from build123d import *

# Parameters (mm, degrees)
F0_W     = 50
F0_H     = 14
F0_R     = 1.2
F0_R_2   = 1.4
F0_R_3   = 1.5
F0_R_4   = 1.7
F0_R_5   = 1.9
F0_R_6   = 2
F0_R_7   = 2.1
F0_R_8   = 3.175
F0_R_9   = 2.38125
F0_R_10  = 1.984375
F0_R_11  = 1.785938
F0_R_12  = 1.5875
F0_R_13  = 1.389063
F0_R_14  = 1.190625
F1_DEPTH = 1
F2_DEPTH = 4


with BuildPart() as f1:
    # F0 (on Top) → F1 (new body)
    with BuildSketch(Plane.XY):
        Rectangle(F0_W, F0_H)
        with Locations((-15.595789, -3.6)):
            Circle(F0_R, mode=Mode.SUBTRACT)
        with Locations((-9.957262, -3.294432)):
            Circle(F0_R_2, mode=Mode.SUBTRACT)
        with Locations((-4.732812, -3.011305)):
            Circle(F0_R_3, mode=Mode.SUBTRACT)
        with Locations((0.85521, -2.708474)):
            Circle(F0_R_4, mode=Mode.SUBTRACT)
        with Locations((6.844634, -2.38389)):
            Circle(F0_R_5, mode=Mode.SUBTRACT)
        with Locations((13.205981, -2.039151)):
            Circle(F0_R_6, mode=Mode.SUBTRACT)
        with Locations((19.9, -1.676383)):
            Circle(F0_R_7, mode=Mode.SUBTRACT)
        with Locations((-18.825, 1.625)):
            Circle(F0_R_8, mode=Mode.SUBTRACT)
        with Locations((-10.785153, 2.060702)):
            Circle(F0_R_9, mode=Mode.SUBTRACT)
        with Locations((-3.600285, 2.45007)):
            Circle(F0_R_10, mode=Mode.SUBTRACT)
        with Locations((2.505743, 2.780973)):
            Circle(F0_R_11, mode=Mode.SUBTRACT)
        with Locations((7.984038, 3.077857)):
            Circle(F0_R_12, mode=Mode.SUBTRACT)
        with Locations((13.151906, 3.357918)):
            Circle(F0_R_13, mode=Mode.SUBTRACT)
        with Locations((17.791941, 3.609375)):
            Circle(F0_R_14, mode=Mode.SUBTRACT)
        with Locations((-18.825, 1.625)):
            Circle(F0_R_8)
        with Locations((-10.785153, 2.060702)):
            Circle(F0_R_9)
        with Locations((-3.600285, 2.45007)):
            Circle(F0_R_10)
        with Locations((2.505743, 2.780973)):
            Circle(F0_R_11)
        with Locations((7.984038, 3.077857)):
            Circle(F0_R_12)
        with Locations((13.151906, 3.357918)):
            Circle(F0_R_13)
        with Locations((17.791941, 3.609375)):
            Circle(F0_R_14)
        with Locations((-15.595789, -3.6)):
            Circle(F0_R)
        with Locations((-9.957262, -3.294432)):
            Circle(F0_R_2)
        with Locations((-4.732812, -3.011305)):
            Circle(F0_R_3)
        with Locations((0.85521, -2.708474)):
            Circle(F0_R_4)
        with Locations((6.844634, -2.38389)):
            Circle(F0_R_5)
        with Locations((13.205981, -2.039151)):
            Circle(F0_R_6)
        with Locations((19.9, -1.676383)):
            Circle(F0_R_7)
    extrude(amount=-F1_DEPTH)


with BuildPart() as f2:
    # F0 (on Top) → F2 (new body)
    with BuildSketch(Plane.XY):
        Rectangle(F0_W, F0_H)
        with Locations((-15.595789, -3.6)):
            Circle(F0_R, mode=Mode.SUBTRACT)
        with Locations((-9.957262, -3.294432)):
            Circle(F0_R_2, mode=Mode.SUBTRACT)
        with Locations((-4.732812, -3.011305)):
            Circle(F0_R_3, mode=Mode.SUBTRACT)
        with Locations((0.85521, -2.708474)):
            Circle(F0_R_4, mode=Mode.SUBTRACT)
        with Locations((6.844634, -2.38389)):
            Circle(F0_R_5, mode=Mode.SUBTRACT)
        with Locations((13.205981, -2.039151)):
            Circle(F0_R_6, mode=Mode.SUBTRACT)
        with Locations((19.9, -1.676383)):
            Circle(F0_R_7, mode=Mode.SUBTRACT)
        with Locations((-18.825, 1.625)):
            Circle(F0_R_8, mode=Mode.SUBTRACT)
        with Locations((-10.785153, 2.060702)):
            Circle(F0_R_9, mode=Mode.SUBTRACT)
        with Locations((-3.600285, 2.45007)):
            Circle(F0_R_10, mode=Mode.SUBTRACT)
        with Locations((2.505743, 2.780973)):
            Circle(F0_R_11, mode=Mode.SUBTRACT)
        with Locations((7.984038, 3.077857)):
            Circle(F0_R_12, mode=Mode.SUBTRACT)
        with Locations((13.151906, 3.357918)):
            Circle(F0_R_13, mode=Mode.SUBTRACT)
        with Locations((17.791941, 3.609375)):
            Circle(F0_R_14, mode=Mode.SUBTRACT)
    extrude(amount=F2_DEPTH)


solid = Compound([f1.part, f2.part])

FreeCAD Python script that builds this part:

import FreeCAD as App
import Part
import Sketcher
from FreeCAD import Vector

doc = App.newDocument("Part")
body = doc.addObject("PartDesign::Body", "Body")

sketch1 = body.newObject("Sketcher::SketchObject", "Sketch")
sketch1.AttachmentSupport = (doc.getObject("XY_Plane"), [""])
sketch1.MapMode = "FlatFace"
sketch1.addGeometry([
    Part.LineSegment(Vector(-25, 7, 0), Vector(-25, -7, 0)),
    Part.LineSegment(Vector(-25, -7, 0), Vector(25, -7, 0)),
    Part.LineSegment(Vector(25, -7, 0), Vector(25, 7, 0)),
    Part.LineSegment(Vector(25, 7, 0), Vector(-25, 7, 0)),
], False)
sketch1.addConstraint([
    Sketcher.Constraint("Coincident", 0, 2, 1, 1),
    Sketcher.Constraint("Coincident", 1, 2, 2, 1),
    Sketcher.Constraint("Coincident", 2, 2, 3, 1),
    Sketcher.Constraint("Coincident", 3, 2, 0, 1),
    Sketcher.Constraint("Vertical", 0),
    Sketcher.Constraint("Horizontal", 1),
    Sketcher.Constraint("Vertical", 2),
    Sketcher.Constraint("Horizontal", 3),
    Sketcher.Constraint("Symmetric", 0, 2, 2, 2, -1, 1),
    Sketcher.Constraint("DistanceX", 1, 1, 1, 2, 50.0),
    Sketcher.Constraint("DistanceY", 0, 2, 0, 1, 14.0),
])
pad1 = body.newObject("PartDesign::Pad", "Pad")
pad1.Profile = sketch1
pad1.Length = 1
pad1.Reversed = True
body2 = doc.addObject("PartDesign::Body", "Body001")

sketch2 = body2.newObject("Sketcher::SketchObject", "Sketch001")
sketch2.AttachmentSupport = (doc.getObject("XY_Plane001"), [""])
sketch2.MapMode = "FlatFace"
sketch2.addGeometry([
    Part.LineSegment(Vector(-25, 7, 0), Vector(-25, -7, 0)),
    Part.LineSegment(Vector(-25, -7, 0), Vector(25, -7, 0)),
    Part.LineSegment(Vector(25, -7, 0), Vector(25, 7, 0)),
    Part.LineSegment(Vector(25, 7, 0), Vector(-25, 7, 0)),
    Part.Circle(Vector(-15.6, -3.6, 0), Vector(0, 0, 1), 1.2),
    Part.Circle(Vector(-10, -3.3, 0), Vector(0, 0, 1), 1.4),
    Part.Circle(Vector(-4.7, -3, 0), Vector(0, 0, 1), 1.5),
    Part.Circle(Vector(0.9, -2.7, 0), Vector(0, 0, 1), 1.7),
    Part.Circle(Vector(6.8, -2.4, 0), Vector(0, 0, 1), 1.9),
    Part.Circle(Vector(13.2, -2, 0), Vector(0, 0, 1), 2),
    Part.Circle(Vector(19.9, -1.7, 0), Vector(0, 0, 1), 2.1),
    Part.Circle(Vector(-18.8, 1.6, 0), Vector(0, 0, 1), 3.2),
    Part.Circle(Vector(-10.8, 2.1, 0), Vector(0, 0, 1), 2.4),
    Part.Circle(Vector(-3.6, 2.5, 0), Vector(0, 0, 1), 2),
    Part.Circle(Vector(2.5, 2.8, 0), Vector(0, 0, 1), 1.8),
    Part.Circle(Vector(8, 3.1, 0), Vector(0, 0, 1), 1.6),
    Part.Circle(Vector(13.2, 3.4, 0), Vector(0, 0, 1), 1.4),
    Part.Circle(Vector(17.8, 3.6, 0), Vector(0, 0, 1), 1.2),
], False)
sketch2.addConstraint([
    Sketcher.Constraint("Coincident", 0, 2, 1, 1),
    Sketcher.Constraint("Coincident", 1, 2, 2, 1),
    Sketcher.Constraint("Coincident", 2, 2, 3, 1),
    Sketcher.Constraint("Coincident", 3, 2, 0, 1),
    Sketcher.Constraint("Vertical", 0),
    Sketcher.Constraint("Horizontal", 1),
    Sketcher.Constraint("Vertical", 2),
    Sketcher.Constraint("Horizontal", 3),
    Sketcher.Constraint("Symmetric", 0, 2, 2, 2, -1, 1),
    Sketcher.Constraint("Diameter", 6, 3.0),
    Sketcher.Constraint("Diameter", 9, 4.0),
    Sketcher.Constraint("Diameter", 4, 2.4),
    Sketcher.Constraint("Diameter", 5, 2.8),
    Sketcher.Constraint("Diameter", 7, 3.4),
    Sketcher.Constraint("Diameter", 8, 3.8),
    Sketcher.Constraint("Diameter", 10, 4.2),
    Sketcher.Constraint("Diameter", 11, 6.35),
    Sketcher.Constraint("DistanceX", 1, 1, 1, 2, 50.0),
    Sketcher.Constraint("DistanceY", 0, 2, 0, 1, 14.0),
    Sketcher.Constraint("Diameter", 15, 3.175),
    Sketcher.Constraint("Diameter", 12, 4.7625),
    Sketcher.Constraint("DistanceY", 4, 3, -1, 1, 3.6),
    Sketcher.Constraint("DistanceX", -1, 1, 10, 3, 19.9),
    Sketcher.Constraint("Diameter", 13, 3.96875),
    Sketcher.Constraint("Diameter", 17, 2.38125),
    Sketcher.Constraint("Diameter", 14, 3.571876),
    Sketcher.Constraint("Diameter", 16, 2.778126),
    Sketcher.Constraint("DistanceX", 11, 3, -1, 1, 18.825),
    Sketcher.Constraint("DistanceY", -1, 1, 11, 3, 1.625),
    Sketcher.Constraint("DistanceX", 4, 3, 7, 3, 16.450999),
    Sketcher.Constraint("DistanceY", -1, 1, 12, 3, 2.060702),
    Sketcher.Constraint("DistanceY", 10, 3, 16, 3, 5.034301),
    Sketcher.Constraint("DistanceX", 4, 3, -1, 1, 15.595789),
    Sketcher.Constraint("DistanceY", 5, 3, -1, 1, 3.294432),
    Sketcher.Constraint("DistanceY", 8, 3, -1, 1, 2.38389),
    Sketcher.Constraint("DistanceX", -1, 1, 9, 3, 13.205981),
    Sketcher.Constraint("DistanceY", 9, 3, -1, 1, 2.039151),
    Sketcher.Constraint("DistanceY", -1, 1, 13, 3, 2.45007),
    Sketcher.Constraint("DistanceY", -1, 1, 16, 3, 3.357918),
    Sketcher.Constraint("DistanceX", -1, 1, 17, 3, 17.791941),
    Sketcher.Constraint("DistanceX", 5, 3, 6, 3, 5.22445),
    Sketcher.Constraint("DistanceY", 6, 3, 7, 3, 0.302831),
    Sketcher.Constraint("DistanceY", 5, 3, 7, 3, 0.585958),
    Sketcher.Constraint("DistanceX", 6, 3, 10, 3, 24.632812),
    Sketcher.Constraint("DistanceX", 12, 3, 5, 3, 0.827891),
    Sketcher.Constraint("DistanceX", 13, 3, 8, 3, 10.444919),
    Sketcher.Constraint("DistanceX", 13, 3, 14, 3, 6.106028),
    Sketcher.Constraint("DistanceY", 9, 3, 15, 3, 5.117008),
    Sketcher.Constraint("DistanceX", 7, 3, 15, 3, 7.128828),
    Sketcher.Constraint("DistanceX", 15, 3, 16, 3, 5.167868),
    Sketcher.Constraint("DistanceY", 15, 3, 17, 3, 0.531518),
    Sketcher.Constraint("DistanceX", -1, 1, 8, 3, 6.844634),
    Sketcher.Constraint("DistanceY", -1, 1, 14, 3, 2.780973),
])
pad2 = body2.newObject("PartDesign::Pad", "Pad001")
pad2.Profile = sketch2
pad2.Length = 4

doc.recompute()
